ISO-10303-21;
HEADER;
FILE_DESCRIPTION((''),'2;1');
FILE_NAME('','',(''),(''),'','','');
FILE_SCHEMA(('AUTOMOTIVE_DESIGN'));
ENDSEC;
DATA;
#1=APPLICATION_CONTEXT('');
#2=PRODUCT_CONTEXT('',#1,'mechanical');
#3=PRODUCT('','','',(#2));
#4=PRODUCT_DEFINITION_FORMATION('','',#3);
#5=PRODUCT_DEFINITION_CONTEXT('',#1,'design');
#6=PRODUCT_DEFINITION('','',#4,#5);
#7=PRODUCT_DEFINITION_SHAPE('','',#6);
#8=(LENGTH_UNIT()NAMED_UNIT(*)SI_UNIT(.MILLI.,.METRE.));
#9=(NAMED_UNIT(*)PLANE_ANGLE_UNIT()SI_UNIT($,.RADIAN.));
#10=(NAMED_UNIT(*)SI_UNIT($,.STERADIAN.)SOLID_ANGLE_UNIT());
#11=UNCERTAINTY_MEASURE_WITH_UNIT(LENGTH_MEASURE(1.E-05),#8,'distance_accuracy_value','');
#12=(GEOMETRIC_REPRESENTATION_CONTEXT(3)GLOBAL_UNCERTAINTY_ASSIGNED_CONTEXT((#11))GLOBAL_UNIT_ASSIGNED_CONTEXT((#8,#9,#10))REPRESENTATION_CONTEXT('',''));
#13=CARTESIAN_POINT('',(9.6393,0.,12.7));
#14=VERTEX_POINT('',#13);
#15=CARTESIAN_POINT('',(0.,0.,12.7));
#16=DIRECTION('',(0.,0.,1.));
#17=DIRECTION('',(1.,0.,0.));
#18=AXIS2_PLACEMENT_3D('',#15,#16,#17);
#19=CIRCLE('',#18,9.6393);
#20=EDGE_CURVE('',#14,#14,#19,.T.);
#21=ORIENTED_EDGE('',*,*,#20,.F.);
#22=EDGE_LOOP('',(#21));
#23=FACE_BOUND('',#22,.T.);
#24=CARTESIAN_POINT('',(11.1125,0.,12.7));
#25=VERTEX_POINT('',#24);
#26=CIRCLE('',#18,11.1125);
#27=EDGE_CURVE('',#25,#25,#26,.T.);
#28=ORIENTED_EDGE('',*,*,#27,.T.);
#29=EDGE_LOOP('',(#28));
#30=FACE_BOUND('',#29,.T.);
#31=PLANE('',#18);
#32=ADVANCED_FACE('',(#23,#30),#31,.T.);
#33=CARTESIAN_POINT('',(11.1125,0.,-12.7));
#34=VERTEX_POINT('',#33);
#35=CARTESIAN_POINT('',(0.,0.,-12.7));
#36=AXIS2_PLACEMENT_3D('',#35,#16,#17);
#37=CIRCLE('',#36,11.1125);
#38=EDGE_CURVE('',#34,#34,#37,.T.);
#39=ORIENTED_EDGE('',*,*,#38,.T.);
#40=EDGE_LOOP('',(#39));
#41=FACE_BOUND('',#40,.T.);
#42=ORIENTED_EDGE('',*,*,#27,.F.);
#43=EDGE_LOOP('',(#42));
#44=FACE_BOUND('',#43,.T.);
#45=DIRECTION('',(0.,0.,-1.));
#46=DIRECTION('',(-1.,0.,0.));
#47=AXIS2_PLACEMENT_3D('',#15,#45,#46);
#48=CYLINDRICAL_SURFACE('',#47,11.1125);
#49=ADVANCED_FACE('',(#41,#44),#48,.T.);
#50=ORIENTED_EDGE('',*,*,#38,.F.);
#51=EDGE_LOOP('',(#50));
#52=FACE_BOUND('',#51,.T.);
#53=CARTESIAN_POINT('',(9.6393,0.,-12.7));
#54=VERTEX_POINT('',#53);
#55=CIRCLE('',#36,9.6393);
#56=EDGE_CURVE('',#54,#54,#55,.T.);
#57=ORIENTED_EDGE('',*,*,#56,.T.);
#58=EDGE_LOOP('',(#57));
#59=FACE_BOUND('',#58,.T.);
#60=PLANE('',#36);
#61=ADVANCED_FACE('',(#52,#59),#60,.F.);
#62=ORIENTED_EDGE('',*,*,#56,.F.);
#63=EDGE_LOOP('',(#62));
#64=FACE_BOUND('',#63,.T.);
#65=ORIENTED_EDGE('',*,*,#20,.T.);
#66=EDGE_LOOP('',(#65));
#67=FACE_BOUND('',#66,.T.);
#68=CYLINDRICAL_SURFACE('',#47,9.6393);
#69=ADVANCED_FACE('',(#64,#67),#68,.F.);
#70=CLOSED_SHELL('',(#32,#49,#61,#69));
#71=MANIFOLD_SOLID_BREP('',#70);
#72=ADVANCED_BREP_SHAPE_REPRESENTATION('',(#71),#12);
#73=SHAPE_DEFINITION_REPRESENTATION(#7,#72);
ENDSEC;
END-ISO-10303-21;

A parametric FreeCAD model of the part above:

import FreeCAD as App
import Part
import Sketcher
Q = App.Units.Quantity

doc = App.newDocument("Part")
params = doc.addObject("Spreadsheet::Sheet", "Params")
for row, (alias, value) in enumerate([
    ("sketch1_diameter", "0.875 in"),
    ("sketch1_diameter2", "0.759 in"),
    ("pad1_length", "1 in"),
], start=1):
    params.set(f"A{row}", alias)
    params.set(f"B{row}", "=" + value)
    params.setAlias(f"B{row}", alias)

body = doc.addObject("PartDesign::Body", "Body")

# Sketch on XY plane
sketch1 = body.newObject("Sketcher::SketchObject", "Sketch")
sketch1.AttachmentSupport = (doc.getObject("XY_Plane"), [""])
sketch1.MapMode = "FlatFace"
sketch1.addGeometry(Part.Circle(App.Vector(0, 0, 0), App.Vector(0, 0, 1), 11), False)
sketch1.addGeometry(Part.Circle(App.Vector(0, 0, 0), App.Vector(0, 0, 1), 10), False)
sketch1.addConstraint(Sketcher.Constraint("Coincident", 0, 3, -1, 1))
sketch1.addConstraint(Sketcher.Constraint("Coincident", 1, 3, -1, 1))
sketch1.addConstraint(Sketcher.Constraint("Diameter", 0, Q("0.875 in")))
sketch1.addConstraint(Sketcher.Constraint("Diameter", 1, Q("0.759 in")))
sketch1.setExpression("Constraints[2]", "Params.sketch1_diameter")
sketch1.setExpression("Constraints[3]", "Params.sketch1_diameter2")
pad1 = body.newObject("PartDesign::Pad", "Pad")
pad1.Profile = sketch1
pad1.setExpression("Length", "Params.pad1_length")
pad1.Midplane = True

doc.recompute()
